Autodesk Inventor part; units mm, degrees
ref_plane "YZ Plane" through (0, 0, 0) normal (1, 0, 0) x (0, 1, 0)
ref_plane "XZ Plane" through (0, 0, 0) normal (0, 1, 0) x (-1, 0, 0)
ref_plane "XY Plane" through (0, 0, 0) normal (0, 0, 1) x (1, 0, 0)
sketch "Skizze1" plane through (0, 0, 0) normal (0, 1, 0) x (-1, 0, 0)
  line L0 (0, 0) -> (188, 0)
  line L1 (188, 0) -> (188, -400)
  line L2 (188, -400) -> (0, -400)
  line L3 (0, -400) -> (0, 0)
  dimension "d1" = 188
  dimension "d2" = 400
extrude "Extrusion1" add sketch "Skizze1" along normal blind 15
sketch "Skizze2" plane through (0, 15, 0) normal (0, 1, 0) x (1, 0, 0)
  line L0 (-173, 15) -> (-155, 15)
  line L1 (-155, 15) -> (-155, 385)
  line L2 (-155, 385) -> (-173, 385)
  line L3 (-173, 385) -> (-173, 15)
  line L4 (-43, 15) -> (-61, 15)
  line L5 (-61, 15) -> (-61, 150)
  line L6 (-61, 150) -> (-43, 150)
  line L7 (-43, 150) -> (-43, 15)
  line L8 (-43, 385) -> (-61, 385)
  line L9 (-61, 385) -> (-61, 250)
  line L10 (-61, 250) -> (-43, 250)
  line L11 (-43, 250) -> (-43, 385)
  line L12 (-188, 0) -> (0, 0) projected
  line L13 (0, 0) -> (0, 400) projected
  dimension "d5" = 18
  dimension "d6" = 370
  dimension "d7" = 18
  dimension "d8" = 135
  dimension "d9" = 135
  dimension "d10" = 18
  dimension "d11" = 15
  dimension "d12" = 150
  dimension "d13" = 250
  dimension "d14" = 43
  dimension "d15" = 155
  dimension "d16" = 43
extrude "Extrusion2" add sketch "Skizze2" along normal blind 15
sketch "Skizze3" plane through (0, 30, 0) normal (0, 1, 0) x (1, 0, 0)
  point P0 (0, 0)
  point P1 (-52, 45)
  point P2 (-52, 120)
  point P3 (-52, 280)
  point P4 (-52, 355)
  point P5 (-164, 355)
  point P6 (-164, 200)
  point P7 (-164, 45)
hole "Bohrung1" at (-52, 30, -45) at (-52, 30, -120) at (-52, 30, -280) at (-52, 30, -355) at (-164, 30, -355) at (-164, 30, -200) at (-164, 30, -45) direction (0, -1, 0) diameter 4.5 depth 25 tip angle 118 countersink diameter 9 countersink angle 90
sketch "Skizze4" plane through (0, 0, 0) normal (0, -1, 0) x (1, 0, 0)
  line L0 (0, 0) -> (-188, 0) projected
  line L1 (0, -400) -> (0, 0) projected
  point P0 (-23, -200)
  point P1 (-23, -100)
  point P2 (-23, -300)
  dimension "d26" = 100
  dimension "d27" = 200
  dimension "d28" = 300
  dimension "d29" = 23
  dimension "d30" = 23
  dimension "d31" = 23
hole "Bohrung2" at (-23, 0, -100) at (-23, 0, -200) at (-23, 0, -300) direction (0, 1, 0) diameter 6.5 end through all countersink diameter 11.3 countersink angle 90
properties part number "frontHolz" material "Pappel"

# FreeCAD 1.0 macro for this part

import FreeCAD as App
import Part
import Sketcher


def add_polygon(sketch, points):
    """Adds a closed chain of lines whose ends are joined by coincident constraints."""
    first, n = sketch.GeometryCount, len(points)
    for a, b in zip(points, points[1:] + points[:1]):
        sketch.addGeometry(Part.LineSegment(App.Vector(*a, 0), App.Vector(*b, 0)), False)
    for i in range(n):
        sketch.addConstraint(Sketcher.Constraint("Coincident", first + i, 2, first + (i + 1) % n, 1))

doc = App.newDocument("Part")
body = doc.addObject("PartDesign::Body", "Body")

# Sketch on XZ plane
sketch1 = body.newObject("Sketcher::SketchObject", "Sketch")
sketch1.AttachmentSupport = (doc.getObject("XZ_Plane"), [""])
sketch1.MapMode = "FlatFace"
add_polygon(sketch1, [(-188, 0), (0, 0), (0, -400), (-188, -400)])  # lines 0-3
sketch1.addConstraint([
    Sketcher.Constraint("Horizontal", 0),
    Sketcher.Constraint("Vertical", 1),
    Sketcher.Constraint("Horizontal", 2),
    Sketcher.Constraint("Vertical", 3),
    Sketcher.Constraint("Coincident", 0, 2, -1, 1),
    Sketcher.Constraint("DistanceX", 0, 1, 0, 2, 188.0),
    Sketcher.Constraint("DistanceY", 1, 2, 1, 1, 400.0),
])
pad1 = body.newObject("PartDesign::Pad", "Pad")
pad1.Profile = sketch1
pad1.Length = 15
pad1.Reversed = True

# Sketch on XZ plane
sketch2 = body.newObject("Sketcher::SketchObject", "Sketch001")
sketch2.AttachmentSupport = (doc.getObject("XZ_Plane"), [""])
sketch2.MapMode = "FlatFace"
sketch2.AttachmentOffset = App.Placement(App.Vector(0, 0, -15), App.Rotation())
add_polygon(sketch2, [(-173, -385), (-173, -15), (-155, -15), (-155, -385)])  # lines 0-3
add_polygon(sketch2, [(-61, -15), (-43, -15), (-43, -150), (-61, -150)])  # lines 4-7
add_polygon(sketch2, [(-43, -250), (-43, -385), (-61, -385), (-61, -250)])  # lines 8-11
sketch2.addConstraint([
    Sketcher.Constraint("Vertical", 0),
    Sketcher.Constraint("Horizontal", 1),
    Sketcher.Constraint("Vertical", 2),
    Sketcher.Constraint("Horizontal", 3),
    Sketcher.Constraint("Horizontal", 4),
    Sketcher.Constraint("Vertical", 5),
    Sketcher.Constraint("Horizontal", 6),
    Sketcher.Constraint("Vertical", 7),
    Sketcher.Constraint("Vertical", 8),
    Sketcher.Constraint("Horizontal", 9),
    Sketcher.Constraint("Vertical", 10),
    Sketcher.Constraint("Horizontal", 11),
    Sketcher.Constraint("Horizontal", 1, 2, 4, 2),
    Sketcher.Constraint("Horizontal", 3, 2, 8, 2),
    Sketcher.Constraint("Vertical", 5, 2, 8, 2),
    Sketcher.Constraint("Vertical", 7, 2, 9, 2),
    Sketcher.Constraint("Equal", 3, 4),
    Sketcher.Constraint("Equal", 7, 8),
    Sketcher.Constraint("DistanceX", 1, 1, 1, 2, 18.0),
    Sketcher.Constraint("DistanceY", 0, 1, 0, 2, 370.0),
    Sketcher.Constraint("DistanceY", 5, 2, 5, 1, 135.0),
    Sketcher.Constraint("DistanceY", 0, 2, -1, 1, 15.0),
    Sketcher.Constraint("DistanceX", 1, 2, -1, 1, 155.0),
    Sketcher.Constraint("DistanceX", 4, 2, -1, 1, 43.0),
])
pad2 = body.newObject("PartDesign::Pad", "Pad001")
pad2.Profile = sketch2
pad2.Length = 15
pad2.Reversed = True

# Sketch on XZ plane
sketch3 = body.newObject("Sketcher::SketchObject", "Sketch002")
sketch3.AttachmentSupport = (doc.getObject("XZ_Plane"), [""])
sketch3.MapMode = "FlatFace"
sketch3.AttachmentOffset = App.Placement(App.Vector(0, 0, -30), App.Rotation())
sketch3.addGeometry([
    Part.Circle(App.Vector(-52, -45, 0), App.Vector(0, 0, 1), 2.2),  # 0
    Part.Circle(App.Vector(-52, -120, 0), App.Vector(0, 0, 1), 2.2),  # 1
    Part.Circle(App.Vector(-52, -280, 0), App.Vector(0, 0, 1), 2.2),  # 2
    Part.Circle(App.Vector(-52, -355, 0), App.Vector(0, 0, 1), 2.2),  # 3
    Part.Circle(App.Vector(-164, -355, 0), App.Vector(0, 0, 1), 2.2),  # 4
    Part.Circle(App.Vector(-164, -200, 0), App.Vector(0, 0, 1), 2.2),  # 5
    Part.Circle(App.Vector(-164, -45, 0), App.Vector(0, 0, 1), 2.2),  # 6
], False)
sketch3.addConstraint([
    Sketcher.Constraint("Equal", 0, 1),
    Sketcher.Constraint("Equal", 1, 2),
    Sketcher.Constraint("Equal", 2, 3),
    Sketcher.Constraint("Equal", 3, 4),
    Sketcher.Constraint("Equal", 4, 5),
    Sketcher.Constraint("Equal", 5, 6),
    Sketcher.Constraint("Horizontal", 3, 3, 4, 3),
    Sketcher.Constraint("Horizontal", 0, 3, 6, 3),
    Sketcher.Constraint("Vertical", 0, 3, 1, 3),
    Sketcher.Constraint("Vertical", 1, 3, 2, 3),
    Sketcher.Constraint("Vertical", 2, 3, 3, 3),
    Sketcher.Constraint("Vertical", 4, 3, 5, 3),
    Sketcher.Constraint("Vertical", 5, 3, 6, 3),
    Sketcher.Constraint("Diameter", 0, 4.5),
    Sketcher.Constraint("DistanceX", 0, 3, -1, 1, 52.0),
    Sketcher.Constraint("DistanceY", 0, 3, -1, 1, 45.0),
    Sketcher.Constraint("DistanceY", 1, 3, -1, 1, 120.0),
    Sketcher.Constraint("DistanceY", 2, 3, -1, 1, 280.0),
    Sketcher.Constraint("DistanceY", 3, 3, -1, 1, 355.0),
    Sketcher.Constraint("DistanceX", 4, 3, -1, 1, 164.0),
    Sketcher.Constraint("DistanceY", 5, 3, -1, 1, 200.0),
])
doc.recompute()
hole = body.newObject("PartDesign::Hole", "Hole")
hole.Profile = sketch3
hole.ThreadType = "None"
hole.Diameter = 4.5
hole.DepthType = "Dimension"
hole.Depth = 25
hole.DrillPoint = "Angled"
hole.DrillPointAngle = 118
hole.HoleCutType = "Countersink"
hole.HoleCutDiameter = 9
hole.HoleCutCountersinkAngle = 90
hole.Reversed = True

# Sketch on XZ plane
sketch4 = body.newObject("Sketcher::SketchObject", "Sketch003")
sketch4.AttachmentSupport = (doc.getObject("XZ_Plane"), [""])
sketch4.MapMode = "FlatFace"
sketch4.addGeometry([
    Part.Circle(App.Vector(-23, -100, 0), App.Vector(0, 0, 1), 3.2),
    Part.Circle(App.Vector(-23, -200, 0), App.Vector(0, 0, 1), 3.2),
    Part.Circle(App.Vector(-23, -300, 0), App.Vector(0, 0, 1), 3.2),
], False)
sketch4.addConstraint([
    Sketcher.Constraint("Equal", 0, 1),
    Sketcher.Constraint("Equal", 1, 2),
    Sketcher.Constraint("Vertical", 0, 3, 1, 3),
    Sketcher.Constraint("Vertical", 1, 3, 2, 3),
    Sketcher.Constraint("Diameter", 0, 6.5),
    Sketcher.Constraint("DistanceX", 0, 3, -1, 1, 23.0),
    Sketcher.Constraint("DistanceY", 0, 3, -1, 1, 100.0),
    Sketcher.Constraint("DistanceY", 1, 3, -1, 1, 200.0),
    Sketcher.Constraint("DistanceY", 2, 3, -1, 1, 300.0),
])
doc.recompute()
hole2 = body.newObject("PartDesign::Hole", "Hole001")
hole2.Profile = sketch4
hole2.ThreadType = "None"
hole2.Diameter = 6.5
hole2.DepthType = "ThroughAll"
hole2.HoleCutType = "Countersink"
hole2.HoleCutDiameter = 11.3
hole2.HoleCutCountersinkAngle = 90

doc.recompute()
